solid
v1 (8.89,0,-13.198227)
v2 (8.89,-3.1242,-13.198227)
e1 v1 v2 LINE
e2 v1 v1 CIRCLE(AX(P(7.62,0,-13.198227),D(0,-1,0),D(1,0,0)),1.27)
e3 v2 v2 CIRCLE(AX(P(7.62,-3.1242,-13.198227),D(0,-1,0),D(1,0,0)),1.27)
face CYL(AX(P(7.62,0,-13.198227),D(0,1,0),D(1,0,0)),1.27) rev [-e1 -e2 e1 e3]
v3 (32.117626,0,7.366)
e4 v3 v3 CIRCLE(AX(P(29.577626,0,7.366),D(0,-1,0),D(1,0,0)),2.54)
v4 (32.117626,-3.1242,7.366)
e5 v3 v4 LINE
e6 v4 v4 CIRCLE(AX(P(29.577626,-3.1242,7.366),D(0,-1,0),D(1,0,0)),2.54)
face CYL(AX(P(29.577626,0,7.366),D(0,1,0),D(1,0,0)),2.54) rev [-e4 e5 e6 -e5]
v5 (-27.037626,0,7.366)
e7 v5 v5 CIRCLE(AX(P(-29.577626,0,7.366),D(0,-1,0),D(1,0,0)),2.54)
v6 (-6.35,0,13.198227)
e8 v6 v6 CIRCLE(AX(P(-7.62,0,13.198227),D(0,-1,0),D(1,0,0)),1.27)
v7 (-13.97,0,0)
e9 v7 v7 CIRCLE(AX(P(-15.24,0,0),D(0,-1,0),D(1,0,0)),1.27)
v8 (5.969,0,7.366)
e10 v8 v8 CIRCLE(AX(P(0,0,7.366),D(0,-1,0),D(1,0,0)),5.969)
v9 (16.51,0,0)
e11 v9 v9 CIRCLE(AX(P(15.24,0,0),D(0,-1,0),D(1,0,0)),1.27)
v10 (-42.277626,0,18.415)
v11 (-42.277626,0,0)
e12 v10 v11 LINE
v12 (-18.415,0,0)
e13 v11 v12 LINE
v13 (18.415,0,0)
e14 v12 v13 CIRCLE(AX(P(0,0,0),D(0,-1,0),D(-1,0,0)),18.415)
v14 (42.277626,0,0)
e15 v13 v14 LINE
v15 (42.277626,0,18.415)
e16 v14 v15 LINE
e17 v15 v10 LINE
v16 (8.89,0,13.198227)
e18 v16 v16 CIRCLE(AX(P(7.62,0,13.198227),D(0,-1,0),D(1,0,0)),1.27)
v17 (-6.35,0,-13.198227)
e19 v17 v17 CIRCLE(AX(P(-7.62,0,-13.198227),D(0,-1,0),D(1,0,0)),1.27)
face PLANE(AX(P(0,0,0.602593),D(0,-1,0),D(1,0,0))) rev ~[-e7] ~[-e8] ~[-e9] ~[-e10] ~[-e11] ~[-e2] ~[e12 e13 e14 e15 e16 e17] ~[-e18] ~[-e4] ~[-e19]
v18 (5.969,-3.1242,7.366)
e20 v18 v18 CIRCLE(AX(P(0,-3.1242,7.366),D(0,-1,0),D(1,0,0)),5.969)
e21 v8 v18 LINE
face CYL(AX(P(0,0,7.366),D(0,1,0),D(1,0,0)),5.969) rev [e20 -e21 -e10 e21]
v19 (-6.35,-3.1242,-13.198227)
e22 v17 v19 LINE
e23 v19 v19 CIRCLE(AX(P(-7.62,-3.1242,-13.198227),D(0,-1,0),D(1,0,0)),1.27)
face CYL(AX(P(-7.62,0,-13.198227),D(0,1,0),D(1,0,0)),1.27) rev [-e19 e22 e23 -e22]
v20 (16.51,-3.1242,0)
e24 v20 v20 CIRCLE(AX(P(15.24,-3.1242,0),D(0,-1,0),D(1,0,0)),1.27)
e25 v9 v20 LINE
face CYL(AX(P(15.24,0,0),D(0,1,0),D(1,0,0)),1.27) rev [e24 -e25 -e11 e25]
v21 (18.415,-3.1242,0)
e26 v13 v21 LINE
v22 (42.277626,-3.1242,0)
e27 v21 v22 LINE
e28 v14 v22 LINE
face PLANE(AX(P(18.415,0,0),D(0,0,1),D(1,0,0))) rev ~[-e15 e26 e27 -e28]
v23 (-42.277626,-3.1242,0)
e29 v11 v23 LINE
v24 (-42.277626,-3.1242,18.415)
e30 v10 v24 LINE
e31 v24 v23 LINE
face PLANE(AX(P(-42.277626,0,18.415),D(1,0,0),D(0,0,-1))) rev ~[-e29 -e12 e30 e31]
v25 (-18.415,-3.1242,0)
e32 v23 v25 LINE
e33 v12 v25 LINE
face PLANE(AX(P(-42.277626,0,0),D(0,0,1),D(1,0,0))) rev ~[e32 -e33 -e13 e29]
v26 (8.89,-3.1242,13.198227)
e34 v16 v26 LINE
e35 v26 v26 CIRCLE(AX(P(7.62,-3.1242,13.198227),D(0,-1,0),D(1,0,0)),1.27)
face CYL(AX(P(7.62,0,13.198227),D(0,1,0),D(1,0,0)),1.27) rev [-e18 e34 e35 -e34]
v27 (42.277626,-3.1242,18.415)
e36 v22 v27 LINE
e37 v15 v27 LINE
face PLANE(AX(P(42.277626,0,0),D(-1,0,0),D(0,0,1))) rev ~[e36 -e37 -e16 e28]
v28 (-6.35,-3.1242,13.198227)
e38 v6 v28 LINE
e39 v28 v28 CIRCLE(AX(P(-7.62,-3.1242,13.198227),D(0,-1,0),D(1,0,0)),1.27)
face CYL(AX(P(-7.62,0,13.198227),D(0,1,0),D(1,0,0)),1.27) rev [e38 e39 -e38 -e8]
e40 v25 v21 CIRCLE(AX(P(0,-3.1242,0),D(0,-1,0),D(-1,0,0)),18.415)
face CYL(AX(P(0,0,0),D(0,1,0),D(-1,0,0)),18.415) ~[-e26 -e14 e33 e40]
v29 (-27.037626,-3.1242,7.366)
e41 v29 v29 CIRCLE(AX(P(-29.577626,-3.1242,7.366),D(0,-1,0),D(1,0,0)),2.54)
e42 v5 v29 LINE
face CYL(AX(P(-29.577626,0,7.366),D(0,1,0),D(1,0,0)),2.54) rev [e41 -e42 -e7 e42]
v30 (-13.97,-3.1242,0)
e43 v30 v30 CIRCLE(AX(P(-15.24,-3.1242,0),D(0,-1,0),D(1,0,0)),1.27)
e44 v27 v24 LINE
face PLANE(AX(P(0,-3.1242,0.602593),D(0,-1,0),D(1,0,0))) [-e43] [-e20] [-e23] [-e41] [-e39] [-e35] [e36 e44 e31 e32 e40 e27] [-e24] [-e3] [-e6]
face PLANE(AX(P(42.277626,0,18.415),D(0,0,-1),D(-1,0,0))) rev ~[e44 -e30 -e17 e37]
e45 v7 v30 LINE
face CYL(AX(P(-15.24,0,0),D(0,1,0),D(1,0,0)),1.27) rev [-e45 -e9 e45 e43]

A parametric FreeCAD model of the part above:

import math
import FreeCAD as App
import Part
import Sketcher
Q = App.Units.Quantity

doc = App.newDocument("Part")
body = doc.addObject("PartDesign::Body", "Body")

# Sketch on XZ plane
sketch1 = body.newObject("Sketcher::SketchObject", "Sketch")
sketch1.AttachmentSupport = (doc.getObject("XZ_Plane"), [""])
sketch1.MapMode = "FlatFace"
sketch1.addGeometry([
    Part.ArcOfCircle(Part.Circle(App.Vector(0, 0, 0), App.Vector(0, 0, 1), 18.4), math.radians(180), math.radians(360)),  # 0
    Part.LineSegment(App.Vector(18.4, 0, 0), App.Vector(42.3, 0, 0)),  # 1
    Part.LineSegment(App.Vector(42.3, 0, 0), App.Vector(42.3, 18.4, 0)),  # 2
    Part.LineSegment(App.Vector(42.3, 18.4, 0), App.Vector(-42.3, 18.4, 0)),  # 3
    Part.LineSegment(App.Vector(-42.3, 18.4, 0), App.Vector(-42.3, 0, 0)),  # 4
    Part.LineSegment(App.Vector(-42.3, 0, 0), App.Vector(-18.4, 0, 0)),  # 5
    Part.Circle(App.Vector(-7.6, -13.2, 0), App.Vector(0, 0, 1), 1.3),  # 6
    Part.Circle(App.Vector(7.6, -13.2, 0), App.Vector(0, 0, 1), 1.3),  # 7
    Part.Circle(App.Vector(-15.2, 0, 0), App.Vector(0, 0, 1), 1.3),  # 8
    Part.Circle(App.Vector(-29.6, 7.4, 0), App.Vector(0, 0, 1), 2.5),  # 9
    Part.Circle(App.Vector(-7.6, 13.2, 0), App.Vector(0, 0, 1), 1.3),  # 10
    Part.Circle(App.Vector(15.2, 0, 0), App.Vector(0, 0, 1), 1.3),  # 11
    Part.Circle(App.Vector(0, 7.4, 0), App.Vector(0, 0, 1), 6),  # 12
    Part.Circle(App.Vector(7.6, 13.2, 0), App.Vector(0, 0, 1), 1.3),  # 13
    Part.Circle(App.Vector(29.6, 7.4, 0), App.Vector(0, 0, 1), 2.5),  # 14
], False)
sketch1.addConstraint([
    Sketcher.Constraint("Coincident", 0, 2, 1, 1),
    Sketcher.Constraint("Coincident", 1, 2, 2, 1),
    Sketcher.Constraint("Coincident", 2, 2, 3, 1),
    Sketcher.Constraint("Coincident", 3, 2, 4, 1),
    Sketcher.Constraint("Coincident", 4, 2, 5, 1),
    Sketcher.Constraint("Coincident", 5, 2, 0, 1),
    Sketcher.Constraint("Horizontal", 1),
    Sketcher.Constraint("Vertical", 2),
    Sketcher.Constraint("Horizontal", 3),
    Sketcher.Constraint("Vertical", 4),
    Sketcher.Constraint("Horizontal", 5),
    Sketcher.Constraint("Coincident", 0, 3, -1, 1),
    Sketcher.Constraint("Equal", 6, 7),
    Sketcher.Constraint("Equal", 7, 8),
    Sketcher.Constraint("Equal", 8, 10),
    Sketcher.Constraint("Equal", 10, 11),
    Sketcher.Constraint("Equal", 11, 13),
    Sketcher.Constraint("Equal", 9, 14),
    Sketcher.Constraint("Symmetric", 7, 3, 10, 3, -1, 1),
    Sketcher.Constraint("Symmetric", 8, 3, 11, 3, -1, 1),
    Sketcher.Constraint("Symmetric", 6, 3, 13, 3, -1, 1),
    Sketcher.Constraint("Symmetric", 1, 2, 4, 2, -1, 1),
    Sketcher.Constraint("Symmetric", 6, 3, 7, 3, -2),
    Sketcher.Constraint("Symmetric", 9, 3, 14, 3, -2),
    Sketcher.Constraint("PointOnObject", 8, 3, -1),
    Sketcher.Constraint("PointOnObject", 12, 3, -2),
    Sketcher.Constraint("PointOnObject", 0, 2, -1),
    Sketcher.Constraint("Horizontal", 9, 3, 12, 3),
    Sketcher.Constraint("Diameter", 6, Q("0.1 in")),
    Sketcher.Constraint("Diameter", 9, Q("0.2 in")),
    Sketcher.Constraint("Diameter", 12, Q("0.47 in")),
    Sketcher.Constraint("Radius", 0, Q("0.725 in")),
    Sketcher.Constraint("DistanceX", 6, 3, -1, 1, Q("0.3 in")),
    Sketcher.Constraint("DistanceX", 8, 3, -1, 1, Q("0.6 in")),
    Sketcher.Constraint("DistanceX", 14, 3, 1, 2, Q("0.5 in")),
    Sketcher.Constraint("DistanceY", 2, 1, 2, 2, Q("0.725 in")),
    Sketcher.Constraint("DistanceY", -1, 1, 9, 3, Q("0.29 in")),
    Sketcher.Constraint("DistanceX", 3, 2, 3, 1, Q("84.555252 mm")),
    Sketcher.Constraint("DistanceY", 6, 3, -1, 1, Q("13.198227 mm")),
])
pad1 = body.newObject("PartDesign::Pad", "Pad")
pad1.Profile = sketch1
pad1.Length = Q("0.123 in")

doc.recompute()
